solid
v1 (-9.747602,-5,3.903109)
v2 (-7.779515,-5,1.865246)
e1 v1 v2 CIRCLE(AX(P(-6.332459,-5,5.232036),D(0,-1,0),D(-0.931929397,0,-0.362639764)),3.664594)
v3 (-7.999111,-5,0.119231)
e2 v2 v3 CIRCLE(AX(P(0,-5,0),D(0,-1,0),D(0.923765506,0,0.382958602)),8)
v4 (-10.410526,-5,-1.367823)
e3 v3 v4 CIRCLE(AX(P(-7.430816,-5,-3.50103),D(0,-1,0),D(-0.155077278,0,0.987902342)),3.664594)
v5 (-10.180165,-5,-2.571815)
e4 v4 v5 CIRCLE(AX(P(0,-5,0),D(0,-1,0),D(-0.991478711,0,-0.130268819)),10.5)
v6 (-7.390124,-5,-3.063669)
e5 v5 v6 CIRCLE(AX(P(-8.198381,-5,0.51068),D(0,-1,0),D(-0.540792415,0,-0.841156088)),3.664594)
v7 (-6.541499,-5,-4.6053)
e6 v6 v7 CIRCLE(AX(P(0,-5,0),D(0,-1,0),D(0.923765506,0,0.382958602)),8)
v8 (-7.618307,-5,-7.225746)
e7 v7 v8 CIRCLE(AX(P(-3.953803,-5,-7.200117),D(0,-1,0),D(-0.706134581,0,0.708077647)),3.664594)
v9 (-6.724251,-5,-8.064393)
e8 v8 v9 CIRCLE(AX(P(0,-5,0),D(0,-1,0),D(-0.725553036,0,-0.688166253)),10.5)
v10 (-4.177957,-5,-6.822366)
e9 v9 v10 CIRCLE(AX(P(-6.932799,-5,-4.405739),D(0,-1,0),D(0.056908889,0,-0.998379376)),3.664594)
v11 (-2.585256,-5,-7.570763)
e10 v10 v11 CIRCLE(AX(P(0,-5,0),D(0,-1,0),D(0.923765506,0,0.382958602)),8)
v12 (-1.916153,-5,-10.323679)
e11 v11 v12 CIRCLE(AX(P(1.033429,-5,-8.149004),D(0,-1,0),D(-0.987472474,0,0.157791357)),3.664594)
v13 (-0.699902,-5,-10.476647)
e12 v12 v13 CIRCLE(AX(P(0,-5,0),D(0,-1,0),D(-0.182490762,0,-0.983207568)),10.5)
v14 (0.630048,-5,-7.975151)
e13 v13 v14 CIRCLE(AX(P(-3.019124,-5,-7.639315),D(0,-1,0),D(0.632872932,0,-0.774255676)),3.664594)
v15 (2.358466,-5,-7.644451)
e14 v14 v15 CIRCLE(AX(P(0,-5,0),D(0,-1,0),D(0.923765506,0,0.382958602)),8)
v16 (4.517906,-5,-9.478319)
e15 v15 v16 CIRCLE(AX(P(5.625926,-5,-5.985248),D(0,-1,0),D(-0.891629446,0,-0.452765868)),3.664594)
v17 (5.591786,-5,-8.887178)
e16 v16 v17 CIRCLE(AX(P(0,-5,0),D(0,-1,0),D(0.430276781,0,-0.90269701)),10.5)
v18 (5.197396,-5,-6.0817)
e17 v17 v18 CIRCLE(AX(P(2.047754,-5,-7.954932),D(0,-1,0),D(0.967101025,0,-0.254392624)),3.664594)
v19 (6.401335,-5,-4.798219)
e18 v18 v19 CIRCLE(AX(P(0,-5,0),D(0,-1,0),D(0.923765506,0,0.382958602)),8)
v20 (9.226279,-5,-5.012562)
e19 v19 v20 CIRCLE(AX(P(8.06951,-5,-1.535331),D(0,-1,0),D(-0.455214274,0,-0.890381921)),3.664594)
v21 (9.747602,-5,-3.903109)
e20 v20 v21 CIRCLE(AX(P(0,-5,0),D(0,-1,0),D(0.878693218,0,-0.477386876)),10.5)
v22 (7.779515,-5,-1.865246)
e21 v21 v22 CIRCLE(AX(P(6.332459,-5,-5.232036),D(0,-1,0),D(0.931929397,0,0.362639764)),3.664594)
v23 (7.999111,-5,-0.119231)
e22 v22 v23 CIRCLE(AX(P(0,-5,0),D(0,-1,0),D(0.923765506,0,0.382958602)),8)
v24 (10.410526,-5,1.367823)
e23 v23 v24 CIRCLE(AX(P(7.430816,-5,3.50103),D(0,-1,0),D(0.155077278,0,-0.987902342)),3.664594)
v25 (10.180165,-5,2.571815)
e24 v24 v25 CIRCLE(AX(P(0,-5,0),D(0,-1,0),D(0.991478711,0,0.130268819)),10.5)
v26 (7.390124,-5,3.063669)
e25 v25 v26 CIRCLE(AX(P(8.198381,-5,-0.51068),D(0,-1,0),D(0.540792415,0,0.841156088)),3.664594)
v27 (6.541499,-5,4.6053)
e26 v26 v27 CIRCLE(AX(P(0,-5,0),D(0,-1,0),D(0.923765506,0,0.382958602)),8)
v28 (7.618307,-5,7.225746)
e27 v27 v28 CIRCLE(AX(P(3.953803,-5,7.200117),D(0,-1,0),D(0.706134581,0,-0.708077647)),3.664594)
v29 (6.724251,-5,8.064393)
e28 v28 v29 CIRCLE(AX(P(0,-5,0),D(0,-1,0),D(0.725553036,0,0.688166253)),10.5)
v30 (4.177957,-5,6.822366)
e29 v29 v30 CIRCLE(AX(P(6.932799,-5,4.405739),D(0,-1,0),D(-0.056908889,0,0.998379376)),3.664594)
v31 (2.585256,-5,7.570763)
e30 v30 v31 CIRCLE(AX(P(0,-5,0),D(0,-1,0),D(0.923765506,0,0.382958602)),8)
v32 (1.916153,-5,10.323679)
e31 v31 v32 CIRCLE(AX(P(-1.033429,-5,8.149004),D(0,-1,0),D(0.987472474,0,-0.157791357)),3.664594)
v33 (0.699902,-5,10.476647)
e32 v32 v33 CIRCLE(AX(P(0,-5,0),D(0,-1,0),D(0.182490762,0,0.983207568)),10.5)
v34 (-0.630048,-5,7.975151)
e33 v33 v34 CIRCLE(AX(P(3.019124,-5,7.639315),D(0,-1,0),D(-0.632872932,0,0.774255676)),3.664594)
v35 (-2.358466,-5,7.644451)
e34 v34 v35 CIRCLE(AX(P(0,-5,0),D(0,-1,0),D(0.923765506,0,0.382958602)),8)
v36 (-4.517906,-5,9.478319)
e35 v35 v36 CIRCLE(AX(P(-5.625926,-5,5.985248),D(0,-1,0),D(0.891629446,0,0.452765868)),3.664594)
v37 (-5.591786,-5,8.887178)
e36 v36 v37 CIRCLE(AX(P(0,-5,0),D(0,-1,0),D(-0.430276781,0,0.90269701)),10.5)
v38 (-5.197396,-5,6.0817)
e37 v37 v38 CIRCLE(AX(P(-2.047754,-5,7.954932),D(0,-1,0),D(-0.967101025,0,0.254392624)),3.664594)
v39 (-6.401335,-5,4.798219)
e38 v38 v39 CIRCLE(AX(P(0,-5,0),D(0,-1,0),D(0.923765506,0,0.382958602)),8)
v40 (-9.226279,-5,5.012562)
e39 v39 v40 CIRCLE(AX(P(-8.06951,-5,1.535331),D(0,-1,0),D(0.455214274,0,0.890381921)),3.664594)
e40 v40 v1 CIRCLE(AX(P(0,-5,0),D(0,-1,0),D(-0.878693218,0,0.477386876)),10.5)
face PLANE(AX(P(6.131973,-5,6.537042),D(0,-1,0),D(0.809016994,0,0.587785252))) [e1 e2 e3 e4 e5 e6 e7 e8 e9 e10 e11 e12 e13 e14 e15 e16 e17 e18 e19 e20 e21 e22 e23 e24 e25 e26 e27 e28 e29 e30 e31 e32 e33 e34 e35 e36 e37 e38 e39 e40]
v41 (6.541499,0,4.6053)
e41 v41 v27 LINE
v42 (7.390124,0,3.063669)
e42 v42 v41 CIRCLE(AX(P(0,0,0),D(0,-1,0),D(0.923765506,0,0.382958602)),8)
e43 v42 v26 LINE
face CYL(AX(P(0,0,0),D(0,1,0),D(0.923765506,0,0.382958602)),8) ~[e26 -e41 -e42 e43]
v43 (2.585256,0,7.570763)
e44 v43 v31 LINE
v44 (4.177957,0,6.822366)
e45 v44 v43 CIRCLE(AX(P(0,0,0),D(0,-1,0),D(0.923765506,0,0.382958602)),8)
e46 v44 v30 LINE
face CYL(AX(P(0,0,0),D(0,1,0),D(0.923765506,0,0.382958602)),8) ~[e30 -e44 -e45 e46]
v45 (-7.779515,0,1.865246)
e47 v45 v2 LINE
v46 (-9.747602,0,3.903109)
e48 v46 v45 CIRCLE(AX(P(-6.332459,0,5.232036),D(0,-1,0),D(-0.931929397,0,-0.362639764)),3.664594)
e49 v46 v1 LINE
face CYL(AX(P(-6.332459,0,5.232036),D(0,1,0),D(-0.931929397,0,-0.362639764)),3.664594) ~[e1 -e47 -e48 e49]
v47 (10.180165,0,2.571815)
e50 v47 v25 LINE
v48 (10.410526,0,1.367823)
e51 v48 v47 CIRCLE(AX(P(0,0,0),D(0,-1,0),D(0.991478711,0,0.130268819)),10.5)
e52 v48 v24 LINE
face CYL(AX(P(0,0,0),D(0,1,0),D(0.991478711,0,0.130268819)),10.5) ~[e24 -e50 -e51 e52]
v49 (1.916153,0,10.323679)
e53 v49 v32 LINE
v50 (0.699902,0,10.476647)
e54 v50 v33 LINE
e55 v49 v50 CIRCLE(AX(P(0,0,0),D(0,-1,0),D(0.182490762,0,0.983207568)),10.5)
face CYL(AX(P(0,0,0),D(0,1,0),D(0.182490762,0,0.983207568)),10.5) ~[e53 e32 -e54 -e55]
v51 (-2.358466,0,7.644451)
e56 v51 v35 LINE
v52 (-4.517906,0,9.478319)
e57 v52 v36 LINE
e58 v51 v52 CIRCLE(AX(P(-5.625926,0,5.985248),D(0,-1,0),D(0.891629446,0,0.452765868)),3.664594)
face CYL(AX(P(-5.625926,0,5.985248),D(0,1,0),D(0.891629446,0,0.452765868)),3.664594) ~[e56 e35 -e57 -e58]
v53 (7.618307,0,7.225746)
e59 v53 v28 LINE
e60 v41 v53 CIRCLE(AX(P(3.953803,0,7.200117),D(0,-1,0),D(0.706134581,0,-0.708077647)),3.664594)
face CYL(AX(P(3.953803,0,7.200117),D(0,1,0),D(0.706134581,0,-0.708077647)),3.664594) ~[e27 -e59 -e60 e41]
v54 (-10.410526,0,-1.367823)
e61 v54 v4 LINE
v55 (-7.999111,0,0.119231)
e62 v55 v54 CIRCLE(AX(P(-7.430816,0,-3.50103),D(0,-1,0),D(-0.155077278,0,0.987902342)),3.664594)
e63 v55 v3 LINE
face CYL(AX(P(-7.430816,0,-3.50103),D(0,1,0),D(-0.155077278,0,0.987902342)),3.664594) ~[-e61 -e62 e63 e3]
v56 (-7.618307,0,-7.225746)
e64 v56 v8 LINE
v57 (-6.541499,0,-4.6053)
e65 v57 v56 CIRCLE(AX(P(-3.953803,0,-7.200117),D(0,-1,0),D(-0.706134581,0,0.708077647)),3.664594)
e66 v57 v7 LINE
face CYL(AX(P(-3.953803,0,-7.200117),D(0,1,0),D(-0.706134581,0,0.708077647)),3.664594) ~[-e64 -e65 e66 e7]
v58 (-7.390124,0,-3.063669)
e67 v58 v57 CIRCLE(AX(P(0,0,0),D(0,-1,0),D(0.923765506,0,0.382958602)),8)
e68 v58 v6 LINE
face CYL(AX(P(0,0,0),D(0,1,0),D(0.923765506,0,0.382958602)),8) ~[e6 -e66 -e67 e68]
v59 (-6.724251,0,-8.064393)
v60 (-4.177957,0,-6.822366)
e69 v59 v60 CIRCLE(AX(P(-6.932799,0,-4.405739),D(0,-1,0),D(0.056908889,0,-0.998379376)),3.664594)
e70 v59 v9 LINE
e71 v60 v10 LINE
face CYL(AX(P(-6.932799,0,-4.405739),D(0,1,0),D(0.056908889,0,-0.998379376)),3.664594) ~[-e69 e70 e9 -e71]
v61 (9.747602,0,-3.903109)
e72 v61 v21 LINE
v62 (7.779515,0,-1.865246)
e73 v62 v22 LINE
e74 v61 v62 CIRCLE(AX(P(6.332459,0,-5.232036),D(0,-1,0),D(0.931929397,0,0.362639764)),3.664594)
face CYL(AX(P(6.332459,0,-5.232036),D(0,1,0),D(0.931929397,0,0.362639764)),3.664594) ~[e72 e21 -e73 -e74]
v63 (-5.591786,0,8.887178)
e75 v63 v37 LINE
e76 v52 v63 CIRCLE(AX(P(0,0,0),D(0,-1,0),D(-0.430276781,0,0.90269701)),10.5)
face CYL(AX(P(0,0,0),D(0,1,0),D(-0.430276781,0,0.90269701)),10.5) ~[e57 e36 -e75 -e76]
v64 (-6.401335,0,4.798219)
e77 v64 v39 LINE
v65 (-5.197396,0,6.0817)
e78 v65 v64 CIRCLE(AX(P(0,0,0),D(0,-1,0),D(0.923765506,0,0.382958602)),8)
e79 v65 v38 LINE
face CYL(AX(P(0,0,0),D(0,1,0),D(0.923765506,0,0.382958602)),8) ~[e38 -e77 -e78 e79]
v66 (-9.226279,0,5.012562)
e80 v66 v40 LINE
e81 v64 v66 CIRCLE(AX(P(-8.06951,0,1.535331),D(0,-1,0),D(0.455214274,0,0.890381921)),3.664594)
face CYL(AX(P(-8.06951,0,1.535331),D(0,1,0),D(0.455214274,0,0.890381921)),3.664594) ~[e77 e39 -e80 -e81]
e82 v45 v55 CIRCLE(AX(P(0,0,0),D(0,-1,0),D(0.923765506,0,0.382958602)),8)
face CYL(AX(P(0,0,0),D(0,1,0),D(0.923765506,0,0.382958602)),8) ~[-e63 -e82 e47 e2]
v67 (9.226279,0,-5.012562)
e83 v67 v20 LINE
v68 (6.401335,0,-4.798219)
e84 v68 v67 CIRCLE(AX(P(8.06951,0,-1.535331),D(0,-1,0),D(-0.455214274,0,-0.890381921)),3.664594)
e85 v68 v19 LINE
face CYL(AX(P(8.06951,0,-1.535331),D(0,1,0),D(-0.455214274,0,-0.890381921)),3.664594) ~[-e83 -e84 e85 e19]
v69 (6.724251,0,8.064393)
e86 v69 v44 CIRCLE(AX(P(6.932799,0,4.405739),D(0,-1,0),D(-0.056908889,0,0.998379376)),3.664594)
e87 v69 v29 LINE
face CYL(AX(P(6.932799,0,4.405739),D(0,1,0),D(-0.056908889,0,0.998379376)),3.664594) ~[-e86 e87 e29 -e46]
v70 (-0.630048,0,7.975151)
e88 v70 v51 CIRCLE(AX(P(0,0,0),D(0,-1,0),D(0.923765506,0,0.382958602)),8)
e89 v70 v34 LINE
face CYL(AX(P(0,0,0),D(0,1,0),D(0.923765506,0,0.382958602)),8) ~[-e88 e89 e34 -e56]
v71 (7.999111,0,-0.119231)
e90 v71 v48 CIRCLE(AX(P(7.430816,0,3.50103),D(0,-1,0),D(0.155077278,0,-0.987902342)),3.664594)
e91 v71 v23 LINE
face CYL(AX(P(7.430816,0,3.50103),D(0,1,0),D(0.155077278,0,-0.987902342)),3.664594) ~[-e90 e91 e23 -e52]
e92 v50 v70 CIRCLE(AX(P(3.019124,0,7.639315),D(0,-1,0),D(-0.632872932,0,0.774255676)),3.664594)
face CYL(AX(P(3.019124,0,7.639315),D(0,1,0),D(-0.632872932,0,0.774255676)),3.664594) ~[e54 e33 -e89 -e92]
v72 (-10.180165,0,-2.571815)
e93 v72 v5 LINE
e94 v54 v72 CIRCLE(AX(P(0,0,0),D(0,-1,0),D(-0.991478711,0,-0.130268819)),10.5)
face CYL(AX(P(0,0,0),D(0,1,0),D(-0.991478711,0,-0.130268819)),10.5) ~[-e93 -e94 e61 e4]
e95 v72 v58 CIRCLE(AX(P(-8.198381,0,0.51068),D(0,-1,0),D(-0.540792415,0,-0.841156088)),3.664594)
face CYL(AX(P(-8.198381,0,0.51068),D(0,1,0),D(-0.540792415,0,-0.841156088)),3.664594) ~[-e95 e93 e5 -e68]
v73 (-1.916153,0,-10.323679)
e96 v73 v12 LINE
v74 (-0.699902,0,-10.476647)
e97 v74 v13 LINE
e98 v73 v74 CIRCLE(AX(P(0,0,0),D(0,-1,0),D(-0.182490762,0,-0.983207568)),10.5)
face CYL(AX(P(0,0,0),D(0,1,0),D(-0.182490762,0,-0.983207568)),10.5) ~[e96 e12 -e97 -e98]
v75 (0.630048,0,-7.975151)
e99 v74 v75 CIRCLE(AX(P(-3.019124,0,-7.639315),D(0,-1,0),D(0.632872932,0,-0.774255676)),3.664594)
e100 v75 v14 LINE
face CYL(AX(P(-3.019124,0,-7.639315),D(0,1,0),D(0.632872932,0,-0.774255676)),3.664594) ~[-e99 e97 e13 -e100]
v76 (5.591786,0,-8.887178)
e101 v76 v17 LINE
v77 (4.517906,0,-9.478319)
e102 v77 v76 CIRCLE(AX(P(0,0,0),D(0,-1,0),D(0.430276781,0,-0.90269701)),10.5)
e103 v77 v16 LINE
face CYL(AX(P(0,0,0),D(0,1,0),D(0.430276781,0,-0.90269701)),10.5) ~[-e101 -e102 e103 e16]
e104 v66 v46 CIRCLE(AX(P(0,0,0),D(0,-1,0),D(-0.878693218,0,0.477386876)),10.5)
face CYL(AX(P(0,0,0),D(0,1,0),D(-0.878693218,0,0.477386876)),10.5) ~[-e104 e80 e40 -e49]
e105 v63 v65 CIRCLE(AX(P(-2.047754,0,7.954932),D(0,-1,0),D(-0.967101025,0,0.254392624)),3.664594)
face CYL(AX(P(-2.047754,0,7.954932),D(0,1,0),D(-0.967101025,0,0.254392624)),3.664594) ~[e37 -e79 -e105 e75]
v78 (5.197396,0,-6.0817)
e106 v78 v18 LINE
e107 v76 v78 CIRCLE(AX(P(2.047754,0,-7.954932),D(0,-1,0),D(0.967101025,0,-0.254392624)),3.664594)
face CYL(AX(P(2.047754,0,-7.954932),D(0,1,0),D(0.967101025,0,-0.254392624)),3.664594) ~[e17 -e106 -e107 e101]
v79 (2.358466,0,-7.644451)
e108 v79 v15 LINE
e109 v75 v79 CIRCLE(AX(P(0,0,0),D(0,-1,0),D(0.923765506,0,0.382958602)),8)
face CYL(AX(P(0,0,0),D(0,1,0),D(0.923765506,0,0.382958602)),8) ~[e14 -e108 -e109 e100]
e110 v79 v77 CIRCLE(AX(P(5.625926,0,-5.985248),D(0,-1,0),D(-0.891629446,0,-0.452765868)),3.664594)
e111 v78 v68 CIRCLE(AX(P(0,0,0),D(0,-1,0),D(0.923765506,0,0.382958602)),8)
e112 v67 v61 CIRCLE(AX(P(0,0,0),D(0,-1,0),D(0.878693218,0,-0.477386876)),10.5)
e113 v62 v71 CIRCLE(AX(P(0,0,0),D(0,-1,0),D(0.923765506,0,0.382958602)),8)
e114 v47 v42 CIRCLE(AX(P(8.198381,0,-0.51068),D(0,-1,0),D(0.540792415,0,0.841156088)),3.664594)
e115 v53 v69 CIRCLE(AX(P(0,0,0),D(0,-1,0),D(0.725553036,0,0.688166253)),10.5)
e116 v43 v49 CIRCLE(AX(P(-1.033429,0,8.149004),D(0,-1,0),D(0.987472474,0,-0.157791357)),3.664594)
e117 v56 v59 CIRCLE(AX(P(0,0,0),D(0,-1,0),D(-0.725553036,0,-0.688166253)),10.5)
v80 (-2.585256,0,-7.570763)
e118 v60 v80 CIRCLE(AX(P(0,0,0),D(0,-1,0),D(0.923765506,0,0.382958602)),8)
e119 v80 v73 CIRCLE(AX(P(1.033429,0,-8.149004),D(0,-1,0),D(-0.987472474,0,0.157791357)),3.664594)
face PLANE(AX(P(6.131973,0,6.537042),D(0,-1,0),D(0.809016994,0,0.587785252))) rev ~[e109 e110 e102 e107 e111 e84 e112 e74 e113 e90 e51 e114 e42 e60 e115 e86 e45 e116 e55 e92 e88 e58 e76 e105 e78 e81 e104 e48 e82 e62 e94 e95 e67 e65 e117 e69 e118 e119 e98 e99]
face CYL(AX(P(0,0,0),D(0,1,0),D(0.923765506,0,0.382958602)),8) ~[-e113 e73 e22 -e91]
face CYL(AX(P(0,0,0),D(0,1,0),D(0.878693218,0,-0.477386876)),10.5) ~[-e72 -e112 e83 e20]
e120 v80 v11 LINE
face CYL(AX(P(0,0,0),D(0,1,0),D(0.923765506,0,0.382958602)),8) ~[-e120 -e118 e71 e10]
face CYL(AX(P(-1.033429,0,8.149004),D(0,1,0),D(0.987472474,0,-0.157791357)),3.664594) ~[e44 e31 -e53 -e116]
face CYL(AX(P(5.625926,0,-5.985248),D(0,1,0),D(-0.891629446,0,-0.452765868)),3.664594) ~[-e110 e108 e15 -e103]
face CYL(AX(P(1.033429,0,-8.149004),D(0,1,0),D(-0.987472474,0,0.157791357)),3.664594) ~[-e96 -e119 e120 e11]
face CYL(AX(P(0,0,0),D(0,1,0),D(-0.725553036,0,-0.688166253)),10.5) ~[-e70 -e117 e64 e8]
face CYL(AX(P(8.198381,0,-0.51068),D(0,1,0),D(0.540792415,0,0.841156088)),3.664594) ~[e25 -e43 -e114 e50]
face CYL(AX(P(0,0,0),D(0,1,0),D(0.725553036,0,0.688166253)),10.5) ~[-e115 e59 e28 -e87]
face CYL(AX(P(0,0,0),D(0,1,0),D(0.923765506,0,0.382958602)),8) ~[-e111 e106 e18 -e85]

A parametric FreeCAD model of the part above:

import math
import FreeCAD as App
import Part
import Sketcher
from FreeCAD import Vector

doc = App.newDocument("Part")
body = doc.addObject("PartDesign::Body", "Body")

# Sketch on XZ plane
sketch1 = body.newObject("Sketcher::SketchObject", "Sketch")
sketch1.AttachmentSupport = (doc.getObject("XZ_Plane"), [""])
sketch1.MapMode = "FlatFace"
sketch1.addGeometry([
    Part.ArcOfCircle(Part.Circle(Vector(0.000001, 0, 0), Vector(0, 0, 1), 7.999999), math.radians(-0.853958), math.radians(0)),
    Part.ArcOfCircle(Part.Circle(Vector(0, 0, 0), Vector(0, 0, 1), 8), math.radians(0), math.radians(22.517066)),
    Part.ArcOfCircle(Part.Circle(Vector(0, 0, 0), Vector(0, 0, 1), 8), math.radians(22.517066), math.radians(359.146042)),
], False)
sketch1.addConstraint([
    Sketcher.Constraint("Tangent", 0, 2, 1, 1),
    Sketcher.Constraint("Tangent", 1, 2, 2, 1),
    Sketcher.Constraint("Coincident", 2, 2, 0, 1),
    Sketcher.Constraint("Coincident", 0, 3, -1, 1),
    Sketcher.Constraint("Equal", 0, 1),
    Sketcher.Constraint("PointOnObject", 0, 2, -1),
    Sketcher.Constraint("Radius", 0, 7.999999),
    Sketcher.Constraint("DistanceY", 2, 2, 1, 2, 3.182899),
    Sketcher.Constraint("DistanceY", -1, 1, 1, 2, 3.063669),
])
pad1 = body.newObject("PartDesign::Pad", "Pad")
pad1.Profile = sketch1
pad1.Length = 5

# Sketch on XZ plane
sketch2 = body.newObject("Sketcher::SketchObject", "Sketch001")
sketch2.AttachmentSupport = (doc.getObject("XZ_Plane"), [""])
sketch2.MapMode = "FlatFace"
sketch2.addGeometry([
    Part.ArcOfCircle(Part.Circle(Vector(0, 0, 0), Vector(0, 0, 1), 8), math.radians(0), math.radians(22.517066)),  # 0
    Part.ArcOfCircle(Part.Circle(Vector(0.000001, 0, 0), Vector(0, 0, 1), 7.999999), math.radians(-0.853958), math.radians(0)),  # 1
    Part.ArcOfCircle(Part.Circle(Vector(7.430816, 3.50103, 0), Vector(0, 0, 1), 3.664594), math.radians(-81.078722), math.radians(-35.599294)),  # 2
    Part.ArcOfCircle(Part.Circle(Vector(0, 0, 0), Vector(0, 0, 1), 10.5), math.radians(7.485127), math.radians(14.177981)),  # 3
    Part.ArcOfCircle(Part.Circle(Vector(8.198381, -0.51068, 0), Vector(0, 0, 1), 3.664594), math.radians(57.262402), math.radians(102.74183)),  # 4
], False)
sketch2.addConstraint([
    Sketcher.Constraint("Tangent", 0, 1, 1, 2),
    Sketcher.Constraint("Coincident", 1, 1, 2, 1),
    Sketcher.Constraint("Coincident", 2, 2, 3, 1),
    Sketcher.Constraint("Coincident", 3, 2, 4, 1),
    Sketcher.Constraint("Coincident", 4, 2, 0, 2),
    Sketcher.Constraint("Coincident", 0, 3, -1, 1),
    Sketcher.Constraint("Coincident", 3, 3, -1, 1),
    Sketcher.Constraint("Equal", 0, 1),
    Sketcher.Constraint("Equal", 2, 4),
    Sketcher.Constraint("PointOnObject", 0, 1, -1),
    Sketcher.Constraint("Radius", 0, 8.0),
    Sketcher.Constraint("Radius", 3, 10.5),
    Sketcher.Constraint("Radius", 2, 3.664594),
    Sketcher.Constraint("DistanceY", 1, 1, 4, 2, 3.182899),
    Sketcher.Constraint("DistanceY", -1, 1, 2, 3, 3.50103),
    Sketcher.Constraint("DistanceX", -1, 1, 4, 3, 8.198381),
    Sketcher.Constraint("DistanceY", 4, 3, -1, 1, 0.51068),
])
pad2 = body.newObject("PartDesign::Pad", "Pad001")
pad2.Profile = sketch2
pad2.Length = 5
body2 = doc.addObject("PartDesign::Body", "Body001")
doc.recompute()

body2.BaseFeature = body
doc.recompute()

body3 = doc.addObject("PartDesign::Body", "Body002")
body3.BaseFeature = body
body3.Placement = App.Placement(Vector(0, 0, 0), App.Rotation(Vector(0, 1, 0), 36))
boolean = body2.newObject("PartDesign::Boolean", "Boolean")
boolean.Type = "Fuse"
boolean.addObjects([body3])
doc.recompute()

body4 = doc.addObject("PartDesign::Body", "Body003")
body4.BaseFeature = body
body4.Placement = App.Placement(Vector(0, 0, 0), App.Rotation(Vector(0, 1, 0), 72))
boolean2 = body2.newObject("PartDesign::Boolean", "Boolean001")
boolean2.Type = "Fuse"
boolean2.addObjects([body4])
doc.recompute()

body5 = doc.addObject("PartDesign::Body", "Body004")
body5.BaseFeature = body
body5.Placement = App.Placement(Vector(0, 0, 0), App.Rotation(Vector(0, 1, 0), 108))
boolean3 = body2.newObject("PartDesign::Boolean", "Boolean002")
boolean3.Type = "Fuse"
boolean3.addObjects([body5])
doc.recompute()

body6 = doc.addObject("PartDesign::Body", "Body005")
body6.BaseFeature = body
body6.Placement = App.Placement(Vector(0, 0, 0), App.Rotation(Vector(0, 1, 0), 144))
boolean4 = body2.newObject("PartDesign::Boolean", "Boolean003")
boolean4.Type = "Fuse"
boolean4.addObjects([body6])
doc.recompute()

body7 = doc.addObject("PartDesign::Body", "Body006")
body7.BaseFeature = body
body7.Placement = App.Placement(Vector(0, 0, 0), App.Rotation(Vector(0, 1, 0), 180))
boolean5 = body2.newObject("PartDesign::Boolean", "Boolean004")
boolean5.Type = "Fuse"
boolean5.addObjects([body7])
doc.recompute()

body8 = doc.addObject("PartDesign::Body", "Body007")
body8.BaseFeature = body
body8.Placement = App.Placement(Vector(0, 0, 0), App.Rotation(Vector(0, 1, 0), 216))
boolean6 = body2.newObject("PartDesign::Boolean", "Boolean005")
boolean6.Type = "Fuse"
boolean6.addObjects([body8])
doc.recompute()

body9 = doc.addObject("PartDesign::Body", "Body008")
body9.BaseFeature = body
body9.Placement = App.Placement(Vector(0, 0, 0), App.Rotation(Vector(0, 1, 0), 252))
boolean7 = body2.newObject("PartDesign::Boolean", "Boolean006")
boolean7.Type = "Fuse"
boolean7.addObjects([body9])
doc.recompute()

body10 = doc.addObject("PartDesign::Body", "Body009")
body10.BaseFeature = body
body10.Placement = App.Placement(Vector(0, 0, 0), App.Rotation(Vector(0, 1, 0), 288))
boolean8 = body2.newObject("PartDesign::Boolean", "Boolean007")
boolean8.Type = "Fuse"
boolean8.addObjects([body10])
doc.recompute()

body.Placement = App.Placement(Vector(0, 0, 0), App.Rotation(Vector(0, 1, 0), 324))
boolean9 = body2.newObject("PartDesign::Boolean", "Boolean008")
boolean9.Type = "Fuse"
boolean9.addObjects([body])

doc.recompute()
